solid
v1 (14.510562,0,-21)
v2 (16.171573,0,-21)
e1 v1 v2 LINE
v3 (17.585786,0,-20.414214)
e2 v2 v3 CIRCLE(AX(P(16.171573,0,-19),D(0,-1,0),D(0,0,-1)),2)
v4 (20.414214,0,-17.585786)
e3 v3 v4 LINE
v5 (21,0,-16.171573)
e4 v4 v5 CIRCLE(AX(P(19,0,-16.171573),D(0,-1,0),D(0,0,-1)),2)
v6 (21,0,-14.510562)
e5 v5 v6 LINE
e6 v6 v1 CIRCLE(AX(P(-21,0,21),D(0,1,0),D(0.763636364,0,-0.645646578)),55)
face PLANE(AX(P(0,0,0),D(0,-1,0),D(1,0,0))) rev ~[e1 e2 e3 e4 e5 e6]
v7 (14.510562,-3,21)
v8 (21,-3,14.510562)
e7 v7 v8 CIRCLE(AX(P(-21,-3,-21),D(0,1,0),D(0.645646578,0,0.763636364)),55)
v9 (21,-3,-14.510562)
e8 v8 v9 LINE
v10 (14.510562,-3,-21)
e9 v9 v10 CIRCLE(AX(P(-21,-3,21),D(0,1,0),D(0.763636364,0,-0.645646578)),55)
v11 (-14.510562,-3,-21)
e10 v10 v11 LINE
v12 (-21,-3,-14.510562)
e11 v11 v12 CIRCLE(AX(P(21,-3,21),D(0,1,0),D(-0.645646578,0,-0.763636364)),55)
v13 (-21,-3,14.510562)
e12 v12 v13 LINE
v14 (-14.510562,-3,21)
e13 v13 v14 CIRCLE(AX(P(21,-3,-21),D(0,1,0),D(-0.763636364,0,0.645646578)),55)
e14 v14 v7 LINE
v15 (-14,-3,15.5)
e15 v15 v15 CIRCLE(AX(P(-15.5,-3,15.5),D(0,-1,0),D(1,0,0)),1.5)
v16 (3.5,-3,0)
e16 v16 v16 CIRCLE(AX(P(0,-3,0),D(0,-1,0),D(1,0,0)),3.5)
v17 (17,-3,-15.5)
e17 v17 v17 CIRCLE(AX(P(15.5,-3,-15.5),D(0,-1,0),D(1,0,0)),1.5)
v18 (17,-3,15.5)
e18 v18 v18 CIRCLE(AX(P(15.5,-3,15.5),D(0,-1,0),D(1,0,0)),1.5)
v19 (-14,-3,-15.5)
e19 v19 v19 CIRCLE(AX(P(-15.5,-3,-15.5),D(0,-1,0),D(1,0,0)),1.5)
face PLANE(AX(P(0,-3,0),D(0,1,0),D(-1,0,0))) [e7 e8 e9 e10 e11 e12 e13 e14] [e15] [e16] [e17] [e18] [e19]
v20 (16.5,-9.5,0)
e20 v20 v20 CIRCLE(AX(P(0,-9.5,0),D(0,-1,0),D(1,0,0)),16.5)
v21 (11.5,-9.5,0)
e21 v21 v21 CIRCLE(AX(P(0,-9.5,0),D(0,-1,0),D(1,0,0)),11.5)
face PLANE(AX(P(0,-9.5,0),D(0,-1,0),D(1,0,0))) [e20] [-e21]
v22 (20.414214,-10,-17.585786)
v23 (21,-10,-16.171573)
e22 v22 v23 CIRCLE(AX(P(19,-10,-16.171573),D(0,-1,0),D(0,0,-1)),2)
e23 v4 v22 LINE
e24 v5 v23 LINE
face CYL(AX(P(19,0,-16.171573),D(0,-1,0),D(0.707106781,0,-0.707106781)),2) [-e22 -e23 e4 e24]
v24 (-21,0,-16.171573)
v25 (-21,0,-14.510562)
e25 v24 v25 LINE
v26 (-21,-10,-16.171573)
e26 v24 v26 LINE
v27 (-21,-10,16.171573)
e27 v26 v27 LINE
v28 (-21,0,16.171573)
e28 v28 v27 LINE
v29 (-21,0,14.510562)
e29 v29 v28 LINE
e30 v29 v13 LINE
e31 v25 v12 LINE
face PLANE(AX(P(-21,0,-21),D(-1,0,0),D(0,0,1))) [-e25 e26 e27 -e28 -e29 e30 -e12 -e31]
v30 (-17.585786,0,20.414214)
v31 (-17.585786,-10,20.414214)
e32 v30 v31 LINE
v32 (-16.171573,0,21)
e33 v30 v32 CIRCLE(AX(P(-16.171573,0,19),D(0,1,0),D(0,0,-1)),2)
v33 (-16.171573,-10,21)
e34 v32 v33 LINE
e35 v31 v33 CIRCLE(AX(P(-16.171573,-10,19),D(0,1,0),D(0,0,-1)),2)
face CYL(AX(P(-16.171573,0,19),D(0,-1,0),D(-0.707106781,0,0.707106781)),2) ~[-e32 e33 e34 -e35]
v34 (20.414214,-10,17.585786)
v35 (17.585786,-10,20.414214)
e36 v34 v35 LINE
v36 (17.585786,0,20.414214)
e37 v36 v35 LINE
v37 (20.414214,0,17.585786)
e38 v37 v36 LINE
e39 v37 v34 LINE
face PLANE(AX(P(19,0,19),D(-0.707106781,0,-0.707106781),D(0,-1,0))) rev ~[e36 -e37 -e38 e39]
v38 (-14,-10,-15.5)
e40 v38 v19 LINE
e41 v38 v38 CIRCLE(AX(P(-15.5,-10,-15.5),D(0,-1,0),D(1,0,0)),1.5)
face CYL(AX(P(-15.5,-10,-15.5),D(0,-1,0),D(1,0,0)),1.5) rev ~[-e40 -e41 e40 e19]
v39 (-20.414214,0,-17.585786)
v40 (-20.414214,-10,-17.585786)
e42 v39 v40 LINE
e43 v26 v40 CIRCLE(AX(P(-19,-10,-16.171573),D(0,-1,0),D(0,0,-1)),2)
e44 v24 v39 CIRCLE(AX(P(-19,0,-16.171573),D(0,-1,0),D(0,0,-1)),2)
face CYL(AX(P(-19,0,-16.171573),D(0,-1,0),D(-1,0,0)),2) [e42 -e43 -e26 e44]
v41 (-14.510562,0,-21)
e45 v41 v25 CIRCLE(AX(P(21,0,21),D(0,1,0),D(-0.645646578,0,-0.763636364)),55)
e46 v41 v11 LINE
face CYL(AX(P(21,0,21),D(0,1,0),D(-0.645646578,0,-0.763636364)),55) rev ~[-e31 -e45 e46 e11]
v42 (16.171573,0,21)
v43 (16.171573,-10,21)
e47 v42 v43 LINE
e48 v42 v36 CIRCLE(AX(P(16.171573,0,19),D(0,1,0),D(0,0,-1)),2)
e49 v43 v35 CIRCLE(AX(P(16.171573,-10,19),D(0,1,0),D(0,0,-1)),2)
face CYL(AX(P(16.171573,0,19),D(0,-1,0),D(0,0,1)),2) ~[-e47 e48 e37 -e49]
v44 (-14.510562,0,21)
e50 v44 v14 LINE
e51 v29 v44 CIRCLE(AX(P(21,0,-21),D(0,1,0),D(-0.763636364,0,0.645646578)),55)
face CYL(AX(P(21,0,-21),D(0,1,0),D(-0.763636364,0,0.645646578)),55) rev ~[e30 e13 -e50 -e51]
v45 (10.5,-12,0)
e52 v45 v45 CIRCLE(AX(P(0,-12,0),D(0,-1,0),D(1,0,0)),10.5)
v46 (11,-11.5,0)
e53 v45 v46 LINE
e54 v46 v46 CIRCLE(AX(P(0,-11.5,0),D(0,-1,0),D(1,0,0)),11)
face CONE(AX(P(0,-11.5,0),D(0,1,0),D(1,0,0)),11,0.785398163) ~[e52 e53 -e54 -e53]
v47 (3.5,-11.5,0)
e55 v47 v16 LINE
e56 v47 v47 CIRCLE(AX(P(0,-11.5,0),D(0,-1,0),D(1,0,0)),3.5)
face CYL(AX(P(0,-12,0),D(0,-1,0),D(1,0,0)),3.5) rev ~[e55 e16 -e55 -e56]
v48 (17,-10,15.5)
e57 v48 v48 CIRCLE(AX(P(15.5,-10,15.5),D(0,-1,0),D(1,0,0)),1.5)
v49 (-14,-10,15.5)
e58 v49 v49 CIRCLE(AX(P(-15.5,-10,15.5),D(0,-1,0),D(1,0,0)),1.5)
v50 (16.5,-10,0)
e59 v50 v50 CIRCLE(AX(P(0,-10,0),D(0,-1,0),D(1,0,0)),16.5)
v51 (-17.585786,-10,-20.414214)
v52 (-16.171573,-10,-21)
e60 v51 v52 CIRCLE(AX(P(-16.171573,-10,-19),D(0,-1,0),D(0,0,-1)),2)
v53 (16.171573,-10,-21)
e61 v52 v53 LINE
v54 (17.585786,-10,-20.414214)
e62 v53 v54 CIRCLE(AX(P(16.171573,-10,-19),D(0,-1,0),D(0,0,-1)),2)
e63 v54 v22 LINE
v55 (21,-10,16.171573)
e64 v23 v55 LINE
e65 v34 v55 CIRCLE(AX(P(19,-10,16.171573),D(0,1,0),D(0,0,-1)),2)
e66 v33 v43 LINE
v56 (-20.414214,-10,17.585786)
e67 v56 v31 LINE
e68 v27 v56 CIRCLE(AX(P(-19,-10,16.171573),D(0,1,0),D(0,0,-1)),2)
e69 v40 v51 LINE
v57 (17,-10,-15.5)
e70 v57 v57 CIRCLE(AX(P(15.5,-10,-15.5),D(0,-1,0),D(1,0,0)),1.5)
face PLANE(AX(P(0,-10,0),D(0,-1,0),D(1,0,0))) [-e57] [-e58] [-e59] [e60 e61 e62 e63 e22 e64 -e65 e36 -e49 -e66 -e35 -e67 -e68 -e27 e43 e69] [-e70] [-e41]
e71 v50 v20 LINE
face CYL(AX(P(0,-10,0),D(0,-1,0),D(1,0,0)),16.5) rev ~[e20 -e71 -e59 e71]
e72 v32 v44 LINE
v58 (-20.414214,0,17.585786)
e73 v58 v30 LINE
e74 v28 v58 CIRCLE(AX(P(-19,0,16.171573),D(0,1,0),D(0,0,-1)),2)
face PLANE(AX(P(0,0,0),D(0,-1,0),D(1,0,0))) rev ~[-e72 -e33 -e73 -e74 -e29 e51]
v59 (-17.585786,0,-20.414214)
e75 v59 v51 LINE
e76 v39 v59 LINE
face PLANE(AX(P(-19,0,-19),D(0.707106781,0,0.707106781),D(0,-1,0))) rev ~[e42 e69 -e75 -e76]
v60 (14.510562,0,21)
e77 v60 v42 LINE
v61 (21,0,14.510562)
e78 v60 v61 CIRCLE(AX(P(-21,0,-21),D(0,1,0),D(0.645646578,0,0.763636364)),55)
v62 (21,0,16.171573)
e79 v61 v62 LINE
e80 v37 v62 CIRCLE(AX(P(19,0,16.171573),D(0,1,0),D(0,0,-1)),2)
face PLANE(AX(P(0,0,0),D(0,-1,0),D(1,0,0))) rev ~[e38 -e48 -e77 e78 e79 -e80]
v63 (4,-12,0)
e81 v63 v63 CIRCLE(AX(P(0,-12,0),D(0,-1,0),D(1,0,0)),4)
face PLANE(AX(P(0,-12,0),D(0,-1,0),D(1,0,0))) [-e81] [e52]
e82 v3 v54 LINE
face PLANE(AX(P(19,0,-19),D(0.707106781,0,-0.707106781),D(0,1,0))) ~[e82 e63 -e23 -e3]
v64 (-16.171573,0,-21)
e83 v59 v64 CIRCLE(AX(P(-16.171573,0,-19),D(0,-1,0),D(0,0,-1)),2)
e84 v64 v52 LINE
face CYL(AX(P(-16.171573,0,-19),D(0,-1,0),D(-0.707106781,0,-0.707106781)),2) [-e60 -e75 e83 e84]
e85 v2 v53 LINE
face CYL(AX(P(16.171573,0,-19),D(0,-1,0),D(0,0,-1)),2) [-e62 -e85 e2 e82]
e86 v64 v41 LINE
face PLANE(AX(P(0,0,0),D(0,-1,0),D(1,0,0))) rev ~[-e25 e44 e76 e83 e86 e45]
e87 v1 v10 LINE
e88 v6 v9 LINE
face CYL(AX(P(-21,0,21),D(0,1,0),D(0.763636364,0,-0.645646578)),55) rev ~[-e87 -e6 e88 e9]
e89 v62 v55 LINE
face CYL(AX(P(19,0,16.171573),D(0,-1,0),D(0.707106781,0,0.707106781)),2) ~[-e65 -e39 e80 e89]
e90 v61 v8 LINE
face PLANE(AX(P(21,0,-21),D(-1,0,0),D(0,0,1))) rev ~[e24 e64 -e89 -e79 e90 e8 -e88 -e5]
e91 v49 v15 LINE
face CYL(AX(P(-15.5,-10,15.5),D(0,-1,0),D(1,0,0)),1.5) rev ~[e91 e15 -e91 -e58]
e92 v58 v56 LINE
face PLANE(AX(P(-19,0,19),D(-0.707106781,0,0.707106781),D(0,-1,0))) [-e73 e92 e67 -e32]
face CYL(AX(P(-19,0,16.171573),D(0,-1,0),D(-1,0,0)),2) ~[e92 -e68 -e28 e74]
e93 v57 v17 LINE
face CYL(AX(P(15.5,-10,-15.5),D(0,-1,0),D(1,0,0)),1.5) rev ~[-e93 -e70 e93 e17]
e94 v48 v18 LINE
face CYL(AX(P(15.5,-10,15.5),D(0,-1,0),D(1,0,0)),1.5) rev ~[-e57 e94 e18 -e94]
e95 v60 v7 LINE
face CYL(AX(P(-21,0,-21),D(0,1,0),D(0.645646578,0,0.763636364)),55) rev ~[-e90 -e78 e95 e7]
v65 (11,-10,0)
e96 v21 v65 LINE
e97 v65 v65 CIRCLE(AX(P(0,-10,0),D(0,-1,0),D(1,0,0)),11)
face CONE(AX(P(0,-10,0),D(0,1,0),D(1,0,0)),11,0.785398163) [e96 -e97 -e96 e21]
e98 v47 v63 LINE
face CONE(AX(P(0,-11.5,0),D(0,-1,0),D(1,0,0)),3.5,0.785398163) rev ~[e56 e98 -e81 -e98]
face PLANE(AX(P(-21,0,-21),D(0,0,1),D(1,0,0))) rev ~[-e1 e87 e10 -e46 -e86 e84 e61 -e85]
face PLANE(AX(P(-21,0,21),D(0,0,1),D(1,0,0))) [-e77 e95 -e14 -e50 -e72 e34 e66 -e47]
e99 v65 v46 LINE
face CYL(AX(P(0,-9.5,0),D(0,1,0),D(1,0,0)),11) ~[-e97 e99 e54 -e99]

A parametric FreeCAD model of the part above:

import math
import FreeCAD as App
import Part
import Sketcher

V = App.Vector


def edges_at(feature, points):
    """Names of the edges that pass closest to the given points."""
    edges = feature.Shape.Edges
    near = lambda p: min(range(len(edges)), key=lambda i: edges[i].distToShape(Part.Vertex(*p))[0])
    return sorted({f"Edge{near(p) + 1}" for p in points})


def add_polygon(sketch, points):
    """Adds a closed chain of lines whose ends are joined by coincident constraints."""
    first, n = sketch.GeometryCount, len(points)
    for a, b in zip(points, points[1:] + points[:1]):
        sketch.addGeometry(Part.LineSegment(App.Vector(*a, 0), App.Vector(*b, 0)), False)
    for i in range(n):
        sketch.addConstraint(Sketcher.Constraint("Coincident", first + i, 2, first + (i + 1) % n, 1))

doc = App.newDocument("Part")
params = doc.addObject("Spreadsheet::Sheet", "Params")
for row, (alias, value) in enumerate([
    ("sketch1_width", "42 mm"),
    ("pad1_length", "10 mm"),
    ("chamfer_size", "4 mm"),
    ("sketch2_diameter", "33 mm"),
    ("pocket1_length", "0.5 mm"),
    ("sketch3_diameter", "22 mm"),
    ("pad2_length", "2.5 mm"),
    ("sketch4_diameter", "7 mm"),
    ("fillet_radius", "2 mm"),
    ("chamfer2_size", "0.5 mm"),
    ("sketch5_radius", "55 mm"),
    ("pocket3_length", "3 mm"),
    ("sketch6_diameter", "3 mm"),
], start=1):
    params.set(f"A{row}", alias)
    params.set(f"B{row}", "=" + value)
    params.setAlias(f"B{row}", alias)

body = doc.addObject("PartDesign::Body", "Body")

# Sketch on XZ plane
sketch1 = body.newObject("Sketcher::SketchObject", "Sketch")
sketch1.AttachmentSupport = (doc.getObject("XZ_Plane"), [""])
sketch1.MapMode = "FlatFace"
add_polygon(sketch1, [(-21, 21), (-21, -21), (21, -21), (21, 21)])  # lines 0-3
sketch1.addConstraint(Sketcher.Constraint("Vertical", 0))
sketch1.addConstraint(Sketcher.Constraint("Horizontal", 1))
sketch1.addConstraint(Sketcher.Constraint("Vertical", 2))
sketch1.addConstraint(Sketcher.Constraint("Horizontal", 3))
sketch1.addConstraint(Sketcher.Constraint("Symmetric", 0, 2, 2, 2, -1, 1))
sketch1.addConstraint(Sketcher.Constraint("Equal", 3, 0))
sketch1.addConstraint(Sketcher.Constraint("DistanceX", 1, 1, 1, 2, 42.0))
sketch1.setExpression("Constraints[10]", "Params.sketch1_width")
pad1 = body.newObject("PartDesign::Pad", "Pad")
pad1.Profile = sketch1
pad1.setExpression("Length", "Params.pad1_length")
doc.recompute()

chamfer = body.newObject("PartDesign::Chamfer", "Chamfer")
chamfer.Base = (pad1, edges_at(pad1, [
    (-21, -5, 21),
    (21, -5, 21),
    (21, -5, -21),
    (-21, -5, -21),
]))
chamfer.setExpression("Size", "Params.chamfer_size")

# Sketch on XZ plane
sketch2 = body.newObject("Sketcher::SketchObject", "Sketch001")
sketch2.AttachmentSupport = (doc.getObject("XZ_Plane"), [""])
sketch2.MapMode = "FlatFace"
sketch2.AttachmentOffset = App.Placement(V(0, 0, 10), App.Rotation())
sketch2.addGeometry(Part.Circle(V(0, 0, 0), V(0, 0, 1), 16.5), False)
sketch2.addConstraint(Sketcher.Constraint("Coincident", 0, 3, -1, 1))
sketch2.addConstraint(Sketcher.Constraint("Diameter", 0, 33.0))
sketch2.setExpression("Constraints[1]", "Params.sketch2_diameter")
pocket1 = body.newObject("PartDesign::Pocket", "Pocket")
pocket1.Profile = sketch2
pocket1.setExpression("Length", "Params.pocket1_length")

# Sketch on XZ plane
sketch3 = body.newObject("Sketcher::SketchObject", "Sketch002")
sketch3.AttachmentSupport = (doc.getObject("XZ_Plane"), [""])
sketch3.MapMode = "FlatFace"
sketch3.AttachmentOffset = App.Placement(V(0, 0, 9.5), App.Rotation())
sketch3.addGeometry(Part.Circle(V(0, 0, 0), V(0, 0, 1), 11), False)
sketch3.addConstraint(Sketcher.Constraint("Coincident", 0, 3, -1, 1))
sketch3.addConstraint(Sketcher.Constraint("Diameter", 0, 22.0))
sketch3.setExpression("Constraints[1]", "Params.sketch3_diameter")
pad2 = body.newObject("PartDesign::Pad", "Pad001")
pad2.Profile = sketch3
pad2.setExpression("Length", "Params.pad2_length")

# Sketch on XZ plane
sketch4 = body.newObject("Sketcher::SketchObject", "Sketch003")
sketch4.AttachmentSupport = (doc.getObject("XZ_Plane"), [""])
sketch4.MapMode = "FlatFace"
sketch4.AttachmentOffset = App.Placement(V(0, 0, 12), App.Rotation())
sketch4.addGeometry(Part.Circle(V(0, 0, 0), V(0, 0, 1), 3.5), False)
sketch4.addConstraint(Sketcher.Constraint("Coincident", 0, 3, -1, 1))
sketch4.addConstraint(Sketcher.Constraint("Diameter", 0, 7.0))
sketch4.setExpression("Constraints[1]", "Params.sketch4_diameter")
pocket2 = body.newObject("PartDesign::Pocket", "Pocket001")
pocket2.Profile = sketch4
pocket2.Type = "ThroughAll"
doc.recompute()

fillet = body.newObject("PartDesign::Fillet", "Fillet")
fillet.Base = (pocket2, edges_at(pocket2, [
    (-17, -5, 21),
    (17, -5, 21),
    (21, -5, 17),
    (21, -5, -17),
    (17, -5, -21),
    (-17, -5, -21),
    (-21, -5, -17),
    (-21, -5, 17),
]))
fillet.setExpression("Radius", "Params.fillet_radius")
doc.recompute()

chamfer2 = body.newObject("PartDesign::Chamfer", "Chamfer001")
chamfer2.Base = (fillet, edges_at(fillet, [(-11, -12, 0), (-3.5, -12, 0), (-11, -9.5, 0)]))
chamfer2.setExpression("Size", "Params.chamfer2_size")

# Sketch on XZ plane
sketch5 = body.newObject("Sketcher::SketchObject", "Sketch004")
sketch5.AttachmentSupport = (doc.getObject("XZ_Plane"), [""])
sketch5.MapMode = "FlatFace"
sketch5.addGeometry(Part.ArcOfCircle(Part.Circle(V(-21, -21, 0), V(0, 0, 1), 55), math.radians(40.214171), math.radians(49.785829)), False)
sketch5.addGeometry(Part.LineSegment(V(21, 14.510562, 0), V(21, -14.510562, 0)), False)
sketch5.addGeometry(Part.ArcOfCircle(Part.Circle(V(-21, 21, 0), V(0, 0, 1), 55), math.radians(-49.785829), math.radians(-40.214171)), False)
sketch5.addGeometry(Part.LineSegment(V(14.510562, -21, 0), V(-14.510562, -21, 0)), False)
sketch5.addGeometry(Part.ArcOfCircle(Part.Circle(V(21, 21, 0), V(0, 0, 1), 55), math.radians(-139.785829), math.radians(-130.214171)), False)
sketch5.addGeometry(Part.LineSegment(V(-21, -14.510562, 0), V(-21, 14.510562, 0)), False)
sketch5.addGeometry(Part.ArcOfCircle(Part.Circle(V(21, -21, 0), V(0, 0, 1), 55), math.radians(130.214171), math.radians(139.785829)), False)
sketch5.addGeometry(Part.LineSegment(V(-14.510562, 21, 0), V(14.510562, 21, 0)), False)
sketch5.addConstraint(Sketcher.Constraint("Coincident", 0, 1, 1, 1))
sketch5.addConstraint(Sketcher.Constraint("Coincident", 1, 2, 2, 2))
sketch5.addConstraint(Sketcher.Constraint("Coincident", 2, 1, 3, 1))
sketch5.addConstraint(Sketcher.Constraint("Coincident", 3, 2, 4, 2))
sketch5.addConstraint(Sketcher.Constraint("Coincident", 4, 1, 5, 1))
sketch5.addConstraint(Sketcher.Constraint("Coincident", 5, 2, 6, 2))
sketch5.addConstraint(Sketcher.Constraint("Coincident", 6, 1, 7, 1))
sketch5.addConstraint(Sketcher.Constraint("Coincident", 7, 2, 0, 2))
sketch5.addConstraint(Sketcher.Constraint("Vertical", 1))
sketch5.addConstraint(Sketcher.Constraint("Horizontal", 3))
sketch5.addConstraint(Sketcher.Constraint("Vertical", 5))
sketch5.addConstraint(Sketcher.Constraint("Horizontal", 7))
sketch5.addConstraint(Sketcher.Constraint("Equal", 0, 2))
sketch5.addConstraint(Sketcher.Constraint("Equal", 2, 4))
sketch5.addConstraint(Sketcher.Constraint("Equal", 4, 6))
sketch5.addConstraint(Sketcher.Constraint("Symmetric", 0, 3, 4, 3, -1, 1))
sketch5.addConstraint(Sketcher.Constraint("Symmetric", 2, 3, 6, 3, -1, 1))
sketch5.addConstraint(Sketcher.Constraint("Symmetric", 2, 3, 4, 3, -2))
sketch5.addConstraint(Sketcher.Constraint("Horizontal", 6, 3, 2, 1))
sketch5.addConstraint(Sketcher.Constraint("Horizontal", 1, 2, 4, 1))
sketch5.addConstraint(Sketcher.Constraint("Horizontal", 4, 3, 6, 1))
sketch5.addConstraint(Sketcher.Constraint("Vertical", 6, 3, 0, 1))
sketch5.addConstraint(Sketcher.Constraint("Equal", 7, 1))
sketch5.addConstraint(Sketcher.Constraint("Radius", 0, 55.0))
sketch5.addConstraint(Sketcher.Constraint("DistanceX", 0, 3, -1, 1, 21.0))
sketch5.setExpression("Constraints[23]", "Params.sketch5_radius")
pocket3 = body.newObject("PartDesign::Pocket", "Pocket002")
pocket3.Profile = sketch5
pocket3.setExpression("Length", "Params.pocket3_length")
pocket3.Reversed = True

# Sketch on XZ plane
sketch6 = body.newObject("Sketcher::SketchObject", "Sketch005")
sketch6.AttachmentSupport = (doc.getObject("XZ_Plane"), [""])
sketch6.MapMode = "FlatFace"
sketch6.AttachmentOffset = App.Placement(V(0, 0, 10), App.Rotation())
sketch6.addGeometry(Part.Circle(V(-15.5, 15.5, 0), V(0, 0, 1), 1.5), False)
sketch6.addGeometry(Part.Circle(V(-15.5, -15.5, 0), V(0, 0, 1), 1.5), False)
sketch6.addGeometry(Part.Circle(V(15.5, -15.5, 0), V(0, 0, 1), 1.5), False)
sketch6.addGeometry(Part.Circle(V(15.5, 15.5, 0), V(0, 0, 1), 1.5), False)
sketch6.addConstraint(Sketcher.Constraint("Equal", 0, 1))
sketch6.addConstraint(Sketcher.Constraint("Equal", 1, 2))
sketch6.addConstraint(Sketcher.Constraint("Equal", 2, 3))
sketch6.addConstraint(Sketcher.Constraint("Symmetric", 0, 3, 2, 3, -1, 1))
sketch6.addConstraint(Sketcher.Constraint("Symmetric", 1, 3, 3, 3, -1, 1))
sketch6.addConstraint(Sketcher.Constraint("Symmetric", 1, 3, 2, 3, -2))
sketch6.addConstraint(Sketcher.Constraint("Diameter", 0, 3.0))
sketch6.addConstraint(Sketcher.Constraint("DistanceY", 1, 3, 0, 3, 31.0))
sketch6.addConstraint(Sketcher.Constraint("DistanceX", 1, 3, 2, 3, 31.0))
sketch6.setExpression("Constraints[6]", "Params.sketch6_diameter")
pocket4 = body.newObject("PartDesign::Pocket", "Pocket003")
pocket4.Profile = sketch6
pocket4.Type = "ThroughAll"

doc.recompute()
